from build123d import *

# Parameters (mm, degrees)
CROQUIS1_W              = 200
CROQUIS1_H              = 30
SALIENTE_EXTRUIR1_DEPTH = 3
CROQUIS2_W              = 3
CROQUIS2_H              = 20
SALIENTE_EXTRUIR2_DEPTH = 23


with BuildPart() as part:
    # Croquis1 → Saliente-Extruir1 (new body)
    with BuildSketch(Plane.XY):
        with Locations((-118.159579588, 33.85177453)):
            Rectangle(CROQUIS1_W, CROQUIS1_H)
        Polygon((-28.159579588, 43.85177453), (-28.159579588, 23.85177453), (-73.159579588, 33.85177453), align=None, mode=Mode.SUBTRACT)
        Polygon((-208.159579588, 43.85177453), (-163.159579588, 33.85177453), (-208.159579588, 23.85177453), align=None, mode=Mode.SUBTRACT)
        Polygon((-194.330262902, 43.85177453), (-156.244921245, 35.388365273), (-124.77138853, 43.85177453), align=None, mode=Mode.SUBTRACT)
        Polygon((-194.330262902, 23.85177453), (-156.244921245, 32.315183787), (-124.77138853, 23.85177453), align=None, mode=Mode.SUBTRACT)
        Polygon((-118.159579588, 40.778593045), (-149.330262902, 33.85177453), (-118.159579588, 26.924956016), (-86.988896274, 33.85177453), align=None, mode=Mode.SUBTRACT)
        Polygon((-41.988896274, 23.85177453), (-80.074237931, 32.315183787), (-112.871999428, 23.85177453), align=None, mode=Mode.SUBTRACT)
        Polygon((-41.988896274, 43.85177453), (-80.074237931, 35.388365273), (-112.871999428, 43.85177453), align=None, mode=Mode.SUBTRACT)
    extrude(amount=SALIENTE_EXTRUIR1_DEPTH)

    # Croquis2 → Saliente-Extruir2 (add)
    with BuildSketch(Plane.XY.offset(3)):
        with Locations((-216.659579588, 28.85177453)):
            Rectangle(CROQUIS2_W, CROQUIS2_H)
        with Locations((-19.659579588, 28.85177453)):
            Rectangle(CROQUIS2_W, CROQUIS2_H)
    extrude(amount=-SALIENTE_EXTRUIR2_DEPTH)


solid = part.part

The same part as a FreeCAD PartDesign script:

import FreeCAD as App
import Part
import Sketcher
from FreeCAD import Vector
Q = App.Units.Quantity

doc = App.newDocument("Part")
params = doc.addObject("Spreadsheet::Sheet", "Params")
for row, (alias, value) in enumerate([
    ("sketch1_width", "200 mm"),
    ("sketch1_height", "30 mm"),
    ("sketch1_height2", "20 mm"),
    ("pad1_length", "3 mm"),
    ("sketch2_width", "3 mm"),
    ("sketch2_height", "20 mm"),
    ("pad2_length", "23 mm"),
], start=1):
    params.set(f"A{row}", alias)
    params.set(f"B{row}", "=" + value)
    params.setAlias(f"B{row}", alias)

body = doc.addObject("PartDesign::Body", "Body")

# Sketch on XY plane
sketch1 = body.newObject("Sketcher::SketchObject", "Sketch")
sketch1.AttachmentSupport = (doc.getObject("XY_Plane"), [""])
sketch1.MapMode = "FlatFace"
sketch1.addGeometry([
    Part.LineSegment(Vector(-218.15958, 48.851775, 0), Vector(-218.15958, 18.851775, 0)),  # 0
    Part.LineSegment(Vector(-218.15958, 18.851775, 0), Vector(-18.15958, 18.851775, 0)),  # 1
    Part.LineSegment(Vector(-18.15958, 18.851775, 0), Vector(-18.15958, 48.851775, 0)),  # 2
    Part.LineSegment(Vector(-18.15958, 48.851775, 0), Vector(-218.15958, 48.851775, 0)),  # 3
    Part.LineSegment(Vector(-124.771389, 23.851775, 0), Vector(-194.330263, 23.851775, 0)),  # 4
    Part.LineSegment(Vector(-194.330263, 23.851775, 0), Vector(-156.244921, 32.315184, 0)),  # 5
    Part.LineSegment(Vector(-156.244921, 32.315184, 0), Vector(-124.771389, 23.851775, 0)),  # 6
    Part.LineSegment(Vector(-80.074238, 32.315184, 0), Vector(-41.988896, 23.851775, 0)),  # 7
    Part.LineSegment(Vector(-41.988896, 23.851775, 0), Vector(-112.871999, 23.851775, 0)),  # 8
    Part.LineSegment(Vector(-112.871999, 23.851775, 0), Vector(-80.074238, 32.315184, 0)),  # 9
    Part.LineSegment(Vector(-208.15958, 23.851775, 0), Vector(-208.15958, 43.851775, 0)),  # 10
    Part.LineSegment(Vector(-208.15958, 43.851775, 0), Vector(-163.15958, 33.851775, 0)),  # 11
    Part.LineSegment(Vector(-163.15958, 33.851775, 0), Vector(-208.15958, 23.851775, 0)),  # 12
    Part.LineSegment(Vector(-156.244921, 35.388365, 0), Vector(-194.330263, 43.851775, 0)),  # 13
    Part.LineSegment(Vector(-194.330263, 43.851775, 0), Vector(-124.771389, 43.851775, 0)),  # 14
    Part.LineSegment(Vector(-124.771389, 43.851775, 0), Vector(-156.244921, 35.388365, 0)),  # 15
    Part.LineSegment(Vector(-149.330263, 33.851775, 0), Vector(-118.15958, 40.778593, 0)),  # 16
    Part.LineSegment(Vector(-118.15958, 40.778593, 0), Vector(-86.988896, 33.851775, 0)),  # 17
    Part.LineSegment(Vector(-86.988896, 33.851775, 0), Vector(-118.15958, 26.924956, 0)),  # 18
    Part.LineSegment(Vector(-118.15958, 26.924956, 0), Vector(-149.330263, 33.851775, 0)),  # 19
    Part.LineSegment(Vector(-73.15958, 33.851775, 0), Vector(-28.15958, 43.851775, 0)),  # 20
    Part.LineSegment(Vector(-28.15958, 43.851775, 0), Vector(-28.15958, 23.851775, 0)),  # 21
    Part.LineSegment(Vector(-28.15958, 23.851775, 0), Vector(-73.15958, 33.851775, 0)),  # 22
    Part.LineSegment(Vector(-112.871999, 43.851775, 0), Vector(-41.988896, 43.851775, 0)),  # 23
    Part.LineSegment(Vector(-41.988896, 43.851775, 0), Vector(-80.074238, 35.388365, 0)),  # 24
    Part.LineSegment(Vector(-80.074238, 35.388365, 0), Vector(-112.871999, 43.851775, 0)),  # 25
], False)
sketch1.addConstraint([
    Sketcher.Constraint("Coincident", 0, 2, 1, 1),
    Sketcher.Constraint("Coincident", 1, 2, 2, 1),
    Sketcher.Constraint("Coincident", 2, 2, 3, 1),
    Sketcher.Constraint("Coincident", 3, 2, 0, 1),
    Sketcher.Constraint("Coincident", 4, 2, 5, 1),
    Sketcher.Constraint("Coincident", 5, 2, 6, 1),
    Sketcher.Constraint("Coincident", 6, 2, 4, 1),
    Sketcher.Constraint("Coincident", 7, 2, 8, 1),
    Sketcher.Constraint("Coincident", 8, 2, 9, 1),
    Sketcher.Constraint("Coincident", 9, 2, 7, 1),
    Sketcher.Constraint("Coincident", 10, 2, 11, 1),
    Sketcher.Constraint("Coincident", 11, 2, 12, 1),
    Sketcher.Constraint("Coincident", 12, 2, 10, 1),
    Sketcher.Constraint("Coincident", 13, 2, 14, 1),
    Sketcher.Constraint("Coincident", 14, 2, 15, 1),
    Sketcher.Constraint("Coincident", 15, 2, 13, 1),
    Sketcher.Constraint("Coincident", 16, 2, 17, 1),
    Sketcher.Constraint("Coincident", 17, 2, 18, 1),
    Sketcher.Constraint("Coincident", 18, 2, 19, 1),
    Sketcher.Constraint("Coincident", 19, 2, 16, 1),
    Sketcher.Constraint("Coincident", 20, 2, 21, 1),
    Sketcher.Constraint("Coincident", 21, 2, 22, 1),
    Sketcher.Constraint("Coincident", 22, 2, 20, 1),
    Sketcher.Constraint("Coincident", 23, 2, 24, 1),
    Sketcher.Constraint("Coincident", 24, 2, 25, 1),
    Sketcher.Constraint("Coincident", 25, 2, 23, 1),
    Sketcher.Constraint("Vertical", 0),
    Sketcher.Constraint("Horizontal", 1),
    Sketcher.Constraint("Vertical", 2),
    Sketcher.Constraint("Horizontal", 3),
    Sketcher.Constraint("Horizontal", 4),
    Sketcher.Constraint("Horizontal", 8),
    Sketcher.Constraint("Vertical", 10),
    Sketcher.Constraint("Horizontal", 14),
    Sketcher.Constraint("Vertical", 21),
    Sketcher.Constraint("Horizontal", 23),
    Sketcher.Constraint("Parallel", 7, 11),
    Sketcher.Constraint("Parallel", 5, 12),
    Sketcher.Constraint("Parallel", 11, 13),
    Sketcher.Constraint("Parallel", 12, 16),
    Sketcher.Constraint("Parallel", 13, 17),
    Sketcher.Constraint("Parallel", 16, 18),
    Sketcher.Constraint("Parallel", 17, 19),
    Sketcher.Constraint("Parallel", 18, 20),
    Sketcher.Constraint("Parallel", 19, 22),
    Sketcher.Constraint("Parallel", 20, 24),
    Sketcher.Constraint("Horizontal", 6, 2, 7, 2),
    Sketcher.Constraint("Horizontal", 5, 2, 9, 2),
    Sketcher.Constraint("Horizontal", 8, 2, 12, 2),
    Sketcher.Constraint("Horizontal", 10, 2, 13, 2),
    Sketcher.Constraint("Horizontal", 11, 2, 17, 2),
    Sketcher.Constraint("Horizontal", 17, 2, 19, 2),
    Sketcher.Constraint("Horizontal", 14, 2, 20, 2),
    Sketcher.Constraint("Horizontal", 12, 2, 21, 2),
    Sketcher.Constraint("Horizontal", 19, 2, 22, 2),
    Sketcher.Constraint("Horizontal", 20, 2, 23, 2),
    Sketcher.Constraint("Horizontal", 15, 2, 24, 2),
    Sketcher.Constraint("Vertical", 4, 2, 13, 2),
    Sketcher.Constraint("Vertical", 6, 2, 14, 2),
    Sketcher.Constraint("Vertical", 5, 2, 15, 2),
    Sketcher.Constraint("Vertical", 7, 2, 23, 2),
    Sketcher.Constraint("Vertical", 8, 2, 25, 2),
    Sketcher.Constraint("DistanceX", 1, 1, 1, 2, Q("200 mm")),
    Sketcher.Constraint("DistanceY", 0, 2, 0, 1, Q("30 mm")),
    Sketcher.Constraint("DistanceY", 10, 1, 10, 2, Q("20 mm")),
    Sketcher.Constraint("DistanceY", 0, 2, 4, 2, Q("5 mm")),
    Sketcher.Constraint("DistanceX", 3, 2, 10, 2, Q("10 mm")),
    Sketcher.Constraint("DistanceX", 10, 2, 11, 2, Q("45 mm")),
    Sketcher.Constraint("DistanceX", 20, 2, 2, 2, Q("10 mm")),
    Sketcher.Constraint("DistanceX", 18, 2, 22, 2, Q("45 mm")),
    Sketcher.Constraint("DistanceX", 8, 2, -1, 1, Q("112.871999 mm")),
    Sketcher.Constraint("Distance", 5, Q("39.014389 mm")),
    Sketcher.Constraint("Distance", 9, Q("33.872149 mm")),
    Sketcher.Constraint("DistanceX", 4, 2, 4, 1, Q("69.558874 mm")),
    Sketcher.Constraint("DistanceX", 0, 2, -1, 1, Q("218.15958 mm")),
    Sketcher.Constraint("DistanceX", 5, 2, -1, 1, Q("156.244921 mm")),
    Sketcher.Constraint("DistanceY", 16, 2, 14, 2, Q("3.073181 mm")),
    Sketcher.Constraint("DistanceY", -1, 1, 0, 2, Q("18.851775 mm")),
])
sketch1.setExpression("Constraints[62]", "Params.sketch1_width")
sketch1.setExpression("Constraints[63]", "Params.sketch1_height")
sketch1.setExpression("Constraints[64]", "Params.sketch1_height2")
pad1 = body.newObject("PartDesign::Pad", "Pad")
pad1.Profile = sketch1
pad1.setExpression("Length", "Params.pad1_length")

# Sketch on XY plane
sketch2 = body.newObject("Sketcher::SketchObject", "Sketch001")
sketch2.AttachmentSupport = (doc.getObject("XY_Plane"), [""])
sketch2.MapMode = "FlatFace"
sketch2.AttachmentOffset = App.Placement(Vector(0, 0, 3), App.Rotation())
sketch2.addGeometry([
    Part.LineSegment(Vector(-218.15958, 38.851775, 0), Vector(-218.15958, 18.851775, 0)),  # 0
    Part.LineSegment(Vector(-218.15958, 18.851775, 0), Vector(-215.15958, 18.851775, 0)),  # 1
    Part.LineSegment(Vector(-215.15958, 18.851775, 0), Vector(-215.15958, 38.851775, 0)),  # 2
    Part.LineSegment(Vector(-215.15958, 38.851775, 0), Vector(-218.15958, 38.851775, 0)),  # 3
    Part.LineSegment(Vector(-21.15958, 38.851775, 0), Vector(-21.15958, 18.851775, 0)),  # 4
    Part.LineSegment(Vector(-21.15958, 18.851775, 0), Vector(-18.15958, 18.851775, 0)),  # 5
    Part.LineSegment(Vector(-18.15958, 18.851775, 0), Vector(-18.15958, 38.851775, 0)),  # 6
    Part.LineSegment(Vector(-18.15958, 38.851775, 0), Vector(-21.15958, 38.851775, 0)),  # 7
], False)
sketch2.addConstraint([
    Sketcher.Constraint("Coincident", 0, 2, 1, 1),
    Sketcher.Constraint("Coincident", 1, 2, 2, 1),
    Sketcher.Constraint("Coincident", 2, 2, 3, 1),
    Sketcher.Constraint("Coincident", 3, 2, 0, 1),
    Sketcher.Constraint("Coincident", 4, 2, 5, 1),
    Sketcher.Constraint("Coincident", 5, 2, 6, 1),
    Sketcher.Constraint("Coincident", 6, 2, 7, 1),
    Sketcher.Constraint("Coincident", 7, 2, 4, 1),
    Sketcher.Constraint("Vertical", 0),
    Sketcher.Constraint("Horizontal", 1),
    Sketcher.Constraint("Vertical", 2),
    Sketcher.Constraint("Horizontal", 3),
    Sketcher.Constraint("Vertical", 4),
    Sketcher.Constraint("Horizontal", 5),
    Sketcher.Constraint("Vertical", 6),
    Sketcher.Constraint("Horizontal", 7),
    Sketcher.Constraint("Horizontal", 1, 2, 4, 2),
    Sketcher.Constraint("Horizontal", 3, 2, 6, 2),
    Sketcher.Constraint("Equal", 3, 5),
    Sketcher.Constraint("DistanceX", 1, 1, 1, 2, Q("3 mm")),
    Sketcher.Constraint("DistanceY", 0, 2, 0, 1, Q("20 mm")),
    Sketcher.Constraint("DistanceX", 1, 2, 4, 2, Q("194 mm")),
    Sketcher.Constraint("DistanceX", 0, 2, -1, 1, Q("218.15958 mm")),
    Sketcher.Constraint("DistanceY", -1, 1, 0, 2, Q("18.851775 mm")),
])
sketch2.setExpression("Constraints[19]", "Params.sketch2_width")
sketch2.setExpression("Constraints[20]", "Params.sketch2_height")
pad2 = body.newObject("PartDesign::Pad", "Pad001")
pad2.Profile = sketch2
pad2.setExpression("Length", "Params.pad2_length")
pad2.Reversed = True

doc.recompute()
